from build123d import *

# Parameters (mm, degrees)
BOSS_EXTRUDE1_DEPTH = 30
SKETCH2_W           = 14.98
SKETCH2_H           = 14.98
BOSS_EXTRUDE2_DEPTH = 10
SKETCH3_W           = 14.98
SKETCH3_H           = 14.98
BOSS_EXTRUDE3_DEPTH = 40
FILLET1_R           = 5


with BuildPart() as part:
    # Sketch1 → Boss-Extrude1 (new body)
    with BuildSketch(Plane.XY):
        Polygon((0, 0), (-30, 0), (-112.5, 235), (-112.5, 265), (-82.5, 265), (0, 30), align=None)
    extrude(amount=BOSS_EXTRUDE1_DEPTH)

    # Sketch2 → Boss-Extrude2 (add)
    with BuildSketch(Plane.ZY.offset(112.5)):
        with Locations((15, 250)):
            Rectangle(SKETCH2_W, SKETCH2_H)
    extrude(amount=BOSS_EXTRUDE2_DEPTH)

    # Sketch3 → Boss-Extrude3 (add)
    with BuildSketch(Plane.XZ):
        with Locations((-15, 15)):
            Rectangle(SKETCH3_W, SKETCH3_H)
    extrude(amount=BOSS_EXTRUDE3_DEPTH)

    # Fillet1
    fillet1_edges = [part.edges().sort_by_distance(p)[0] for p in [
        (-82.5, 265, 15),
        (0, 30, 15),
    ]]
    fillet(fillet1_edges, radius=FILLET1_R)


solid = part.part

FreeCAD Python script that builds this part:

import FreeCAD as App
import Part
import Sketcher

V = App.Vector


def edges_at(feature, points):
    """Names of the edges that pass closest to the given points."""
    edges = feature.Shape.Edges
    near = lambda p: min(range(len(edges)), key=lambda i: edges[i].distToShape(Part.Vertex(*p))[0])
    return sorted({f"Edge{near(p) + 1}" for p in points})


def add_polygon(sketch, points):
    """Adds a closed chain of lines whose ends are joined by coincident constraints."""
    first, n = sketch.GeometryCount, len(points)
    for a, b in zip(points, points[1:] + points[:1]):
        sketch.addGeometry(Part.LineSegment(App.Vector(*a, 0), App.Vector(*b, 0)), False)
    for i in range(n):
        sketch.addConstraint(Sketcher.Constraint("Coincident", first + i, 2, first + (i + 1) % n, 1))

doc = App.newDocument("Part")
body = doc.addObject("PartDesign::Body", "Body")

sketch1 = body.newObject("Sketcher::SketchObject", "Sketch")
sketch1.AttachmentSupport = (doc.getObject("XY_Plane"), [""])
sketch1.MapMode = "FlatFace"
add_polygon(sketch1, [(-30, 0), (0, 0), (0, 30), (-82, 265), (-112, 265), (-112, 235)])
sketch1.addConstraint([
    Sketcher.Constraint("Horizontal", 0),
    Sketcher.Constraint("Vertical", 1),
    Sketcher.Constraint("Horizontal", 3),
    Sketcher.Constraint("Vertical", 4),
    Sketcher.Constraint("Coincident", 0, 2, -1, 1),
    Sketcher.Constraint("Parallel", 2, 5),
    Sketcher.Constraint("Equal", 0, 3),
    Sketcher.Constraint("Equal", 3, 1),
    Sketcher.Constraint("DistanceX", 0, 1, 0, 2, 30.0),
    Sketcher.Constraint("DistanceY", -1, 1, 2, 2, 265.0),
    Sketcher.Constraint("DistanceX", 2, 2, -1, 1, 82.5),
])
pad1 = body.newObject("PartDesign::Pad", "Pad")
pad1.Profile = sketch1
pad1.Length = 30

sketch2 = body.newObject("Sketcher::SketchObject", "Sketch001")
sketch2.AttachmentSupport = (doc.getObject("YZ_Plane"), [""])
sketch2.MapMode = "FlatFace"
sketch2.AttachmentOffset = App.Placement(V(0, 0, -112.5), App.Rotation())
add_polygon(sketch2, [(257, 8), (243, 8), (243, 22), (257, 22)])
sketch2.addConstraint([
    Sketcher.Constraint("Horizontal", 0),
    Sketcher.Constraint("Vertical", 1),
    Sketcher.Constraint("Horizontal", 2),
    Sketcher.Constraint("Vertical", 3),
    Sketcher.Constraint("Equal", 2, 1),
    Sketcher.Constraint("DistanceX", 0, 2, 0, 1, 14.98),
    Sketcher.Constraint("DistanceX", -1, 1, 0, 2, 242.51),
    Sketcher.Constraint("DistanceY", -1, 1, 0, 2, 7.51),
])
pad2 = body.newObject("PartDesign::Pad", "Pad001")
pad2.Profile = sketch2
pad2.Length = 10
pad2.Reversed = True

sketch3 = body.newObject("Sketcher::SketchObject", "Sketch002")
sketch3.AttachmentSupport = (doc.getObject("XZ_Plane"), [""])
sketch3.MapMode = "FlatFace"
add_polygon(sketch3, [(-22, 22), (-22, 8), (-8, 8), (-8, 22)])
sketch3.addConstraint([
    Sketcher.Constraint("Vertical", 0),
    Sketcher.Constraint("Horizontal", 1),
    Sketcher.Constraint("Vertical", 2),
    Sketcher.Constraint("Horizontal", 3),
    Sketcher.Constraint("Equal", 3, 0),
    Sketcher.Constraint("DistanceX", 1, 1, 1, 2, 14.98),
    Sketcher.Constraint("DistanceX", 0, 2, -1, 1, 22.49),
    Sketcher.Constraint("DistanceY", -1, 1, 0, 2, 7.51),
])
pad3 = body.newObject("PartDesign::Pad", "Pad002")
pad3.Profile = sketch3
pad3.Length = 40
doc.recompute()

fillet = body.newObject("PartDesign::Fillet", "Fillet")
fillet.Base = (pad3, edges_at(pad3, [(-82.5, 265, 15), (0, 30, 15)]))
fillet.Radius = 5

doc.recompute()
